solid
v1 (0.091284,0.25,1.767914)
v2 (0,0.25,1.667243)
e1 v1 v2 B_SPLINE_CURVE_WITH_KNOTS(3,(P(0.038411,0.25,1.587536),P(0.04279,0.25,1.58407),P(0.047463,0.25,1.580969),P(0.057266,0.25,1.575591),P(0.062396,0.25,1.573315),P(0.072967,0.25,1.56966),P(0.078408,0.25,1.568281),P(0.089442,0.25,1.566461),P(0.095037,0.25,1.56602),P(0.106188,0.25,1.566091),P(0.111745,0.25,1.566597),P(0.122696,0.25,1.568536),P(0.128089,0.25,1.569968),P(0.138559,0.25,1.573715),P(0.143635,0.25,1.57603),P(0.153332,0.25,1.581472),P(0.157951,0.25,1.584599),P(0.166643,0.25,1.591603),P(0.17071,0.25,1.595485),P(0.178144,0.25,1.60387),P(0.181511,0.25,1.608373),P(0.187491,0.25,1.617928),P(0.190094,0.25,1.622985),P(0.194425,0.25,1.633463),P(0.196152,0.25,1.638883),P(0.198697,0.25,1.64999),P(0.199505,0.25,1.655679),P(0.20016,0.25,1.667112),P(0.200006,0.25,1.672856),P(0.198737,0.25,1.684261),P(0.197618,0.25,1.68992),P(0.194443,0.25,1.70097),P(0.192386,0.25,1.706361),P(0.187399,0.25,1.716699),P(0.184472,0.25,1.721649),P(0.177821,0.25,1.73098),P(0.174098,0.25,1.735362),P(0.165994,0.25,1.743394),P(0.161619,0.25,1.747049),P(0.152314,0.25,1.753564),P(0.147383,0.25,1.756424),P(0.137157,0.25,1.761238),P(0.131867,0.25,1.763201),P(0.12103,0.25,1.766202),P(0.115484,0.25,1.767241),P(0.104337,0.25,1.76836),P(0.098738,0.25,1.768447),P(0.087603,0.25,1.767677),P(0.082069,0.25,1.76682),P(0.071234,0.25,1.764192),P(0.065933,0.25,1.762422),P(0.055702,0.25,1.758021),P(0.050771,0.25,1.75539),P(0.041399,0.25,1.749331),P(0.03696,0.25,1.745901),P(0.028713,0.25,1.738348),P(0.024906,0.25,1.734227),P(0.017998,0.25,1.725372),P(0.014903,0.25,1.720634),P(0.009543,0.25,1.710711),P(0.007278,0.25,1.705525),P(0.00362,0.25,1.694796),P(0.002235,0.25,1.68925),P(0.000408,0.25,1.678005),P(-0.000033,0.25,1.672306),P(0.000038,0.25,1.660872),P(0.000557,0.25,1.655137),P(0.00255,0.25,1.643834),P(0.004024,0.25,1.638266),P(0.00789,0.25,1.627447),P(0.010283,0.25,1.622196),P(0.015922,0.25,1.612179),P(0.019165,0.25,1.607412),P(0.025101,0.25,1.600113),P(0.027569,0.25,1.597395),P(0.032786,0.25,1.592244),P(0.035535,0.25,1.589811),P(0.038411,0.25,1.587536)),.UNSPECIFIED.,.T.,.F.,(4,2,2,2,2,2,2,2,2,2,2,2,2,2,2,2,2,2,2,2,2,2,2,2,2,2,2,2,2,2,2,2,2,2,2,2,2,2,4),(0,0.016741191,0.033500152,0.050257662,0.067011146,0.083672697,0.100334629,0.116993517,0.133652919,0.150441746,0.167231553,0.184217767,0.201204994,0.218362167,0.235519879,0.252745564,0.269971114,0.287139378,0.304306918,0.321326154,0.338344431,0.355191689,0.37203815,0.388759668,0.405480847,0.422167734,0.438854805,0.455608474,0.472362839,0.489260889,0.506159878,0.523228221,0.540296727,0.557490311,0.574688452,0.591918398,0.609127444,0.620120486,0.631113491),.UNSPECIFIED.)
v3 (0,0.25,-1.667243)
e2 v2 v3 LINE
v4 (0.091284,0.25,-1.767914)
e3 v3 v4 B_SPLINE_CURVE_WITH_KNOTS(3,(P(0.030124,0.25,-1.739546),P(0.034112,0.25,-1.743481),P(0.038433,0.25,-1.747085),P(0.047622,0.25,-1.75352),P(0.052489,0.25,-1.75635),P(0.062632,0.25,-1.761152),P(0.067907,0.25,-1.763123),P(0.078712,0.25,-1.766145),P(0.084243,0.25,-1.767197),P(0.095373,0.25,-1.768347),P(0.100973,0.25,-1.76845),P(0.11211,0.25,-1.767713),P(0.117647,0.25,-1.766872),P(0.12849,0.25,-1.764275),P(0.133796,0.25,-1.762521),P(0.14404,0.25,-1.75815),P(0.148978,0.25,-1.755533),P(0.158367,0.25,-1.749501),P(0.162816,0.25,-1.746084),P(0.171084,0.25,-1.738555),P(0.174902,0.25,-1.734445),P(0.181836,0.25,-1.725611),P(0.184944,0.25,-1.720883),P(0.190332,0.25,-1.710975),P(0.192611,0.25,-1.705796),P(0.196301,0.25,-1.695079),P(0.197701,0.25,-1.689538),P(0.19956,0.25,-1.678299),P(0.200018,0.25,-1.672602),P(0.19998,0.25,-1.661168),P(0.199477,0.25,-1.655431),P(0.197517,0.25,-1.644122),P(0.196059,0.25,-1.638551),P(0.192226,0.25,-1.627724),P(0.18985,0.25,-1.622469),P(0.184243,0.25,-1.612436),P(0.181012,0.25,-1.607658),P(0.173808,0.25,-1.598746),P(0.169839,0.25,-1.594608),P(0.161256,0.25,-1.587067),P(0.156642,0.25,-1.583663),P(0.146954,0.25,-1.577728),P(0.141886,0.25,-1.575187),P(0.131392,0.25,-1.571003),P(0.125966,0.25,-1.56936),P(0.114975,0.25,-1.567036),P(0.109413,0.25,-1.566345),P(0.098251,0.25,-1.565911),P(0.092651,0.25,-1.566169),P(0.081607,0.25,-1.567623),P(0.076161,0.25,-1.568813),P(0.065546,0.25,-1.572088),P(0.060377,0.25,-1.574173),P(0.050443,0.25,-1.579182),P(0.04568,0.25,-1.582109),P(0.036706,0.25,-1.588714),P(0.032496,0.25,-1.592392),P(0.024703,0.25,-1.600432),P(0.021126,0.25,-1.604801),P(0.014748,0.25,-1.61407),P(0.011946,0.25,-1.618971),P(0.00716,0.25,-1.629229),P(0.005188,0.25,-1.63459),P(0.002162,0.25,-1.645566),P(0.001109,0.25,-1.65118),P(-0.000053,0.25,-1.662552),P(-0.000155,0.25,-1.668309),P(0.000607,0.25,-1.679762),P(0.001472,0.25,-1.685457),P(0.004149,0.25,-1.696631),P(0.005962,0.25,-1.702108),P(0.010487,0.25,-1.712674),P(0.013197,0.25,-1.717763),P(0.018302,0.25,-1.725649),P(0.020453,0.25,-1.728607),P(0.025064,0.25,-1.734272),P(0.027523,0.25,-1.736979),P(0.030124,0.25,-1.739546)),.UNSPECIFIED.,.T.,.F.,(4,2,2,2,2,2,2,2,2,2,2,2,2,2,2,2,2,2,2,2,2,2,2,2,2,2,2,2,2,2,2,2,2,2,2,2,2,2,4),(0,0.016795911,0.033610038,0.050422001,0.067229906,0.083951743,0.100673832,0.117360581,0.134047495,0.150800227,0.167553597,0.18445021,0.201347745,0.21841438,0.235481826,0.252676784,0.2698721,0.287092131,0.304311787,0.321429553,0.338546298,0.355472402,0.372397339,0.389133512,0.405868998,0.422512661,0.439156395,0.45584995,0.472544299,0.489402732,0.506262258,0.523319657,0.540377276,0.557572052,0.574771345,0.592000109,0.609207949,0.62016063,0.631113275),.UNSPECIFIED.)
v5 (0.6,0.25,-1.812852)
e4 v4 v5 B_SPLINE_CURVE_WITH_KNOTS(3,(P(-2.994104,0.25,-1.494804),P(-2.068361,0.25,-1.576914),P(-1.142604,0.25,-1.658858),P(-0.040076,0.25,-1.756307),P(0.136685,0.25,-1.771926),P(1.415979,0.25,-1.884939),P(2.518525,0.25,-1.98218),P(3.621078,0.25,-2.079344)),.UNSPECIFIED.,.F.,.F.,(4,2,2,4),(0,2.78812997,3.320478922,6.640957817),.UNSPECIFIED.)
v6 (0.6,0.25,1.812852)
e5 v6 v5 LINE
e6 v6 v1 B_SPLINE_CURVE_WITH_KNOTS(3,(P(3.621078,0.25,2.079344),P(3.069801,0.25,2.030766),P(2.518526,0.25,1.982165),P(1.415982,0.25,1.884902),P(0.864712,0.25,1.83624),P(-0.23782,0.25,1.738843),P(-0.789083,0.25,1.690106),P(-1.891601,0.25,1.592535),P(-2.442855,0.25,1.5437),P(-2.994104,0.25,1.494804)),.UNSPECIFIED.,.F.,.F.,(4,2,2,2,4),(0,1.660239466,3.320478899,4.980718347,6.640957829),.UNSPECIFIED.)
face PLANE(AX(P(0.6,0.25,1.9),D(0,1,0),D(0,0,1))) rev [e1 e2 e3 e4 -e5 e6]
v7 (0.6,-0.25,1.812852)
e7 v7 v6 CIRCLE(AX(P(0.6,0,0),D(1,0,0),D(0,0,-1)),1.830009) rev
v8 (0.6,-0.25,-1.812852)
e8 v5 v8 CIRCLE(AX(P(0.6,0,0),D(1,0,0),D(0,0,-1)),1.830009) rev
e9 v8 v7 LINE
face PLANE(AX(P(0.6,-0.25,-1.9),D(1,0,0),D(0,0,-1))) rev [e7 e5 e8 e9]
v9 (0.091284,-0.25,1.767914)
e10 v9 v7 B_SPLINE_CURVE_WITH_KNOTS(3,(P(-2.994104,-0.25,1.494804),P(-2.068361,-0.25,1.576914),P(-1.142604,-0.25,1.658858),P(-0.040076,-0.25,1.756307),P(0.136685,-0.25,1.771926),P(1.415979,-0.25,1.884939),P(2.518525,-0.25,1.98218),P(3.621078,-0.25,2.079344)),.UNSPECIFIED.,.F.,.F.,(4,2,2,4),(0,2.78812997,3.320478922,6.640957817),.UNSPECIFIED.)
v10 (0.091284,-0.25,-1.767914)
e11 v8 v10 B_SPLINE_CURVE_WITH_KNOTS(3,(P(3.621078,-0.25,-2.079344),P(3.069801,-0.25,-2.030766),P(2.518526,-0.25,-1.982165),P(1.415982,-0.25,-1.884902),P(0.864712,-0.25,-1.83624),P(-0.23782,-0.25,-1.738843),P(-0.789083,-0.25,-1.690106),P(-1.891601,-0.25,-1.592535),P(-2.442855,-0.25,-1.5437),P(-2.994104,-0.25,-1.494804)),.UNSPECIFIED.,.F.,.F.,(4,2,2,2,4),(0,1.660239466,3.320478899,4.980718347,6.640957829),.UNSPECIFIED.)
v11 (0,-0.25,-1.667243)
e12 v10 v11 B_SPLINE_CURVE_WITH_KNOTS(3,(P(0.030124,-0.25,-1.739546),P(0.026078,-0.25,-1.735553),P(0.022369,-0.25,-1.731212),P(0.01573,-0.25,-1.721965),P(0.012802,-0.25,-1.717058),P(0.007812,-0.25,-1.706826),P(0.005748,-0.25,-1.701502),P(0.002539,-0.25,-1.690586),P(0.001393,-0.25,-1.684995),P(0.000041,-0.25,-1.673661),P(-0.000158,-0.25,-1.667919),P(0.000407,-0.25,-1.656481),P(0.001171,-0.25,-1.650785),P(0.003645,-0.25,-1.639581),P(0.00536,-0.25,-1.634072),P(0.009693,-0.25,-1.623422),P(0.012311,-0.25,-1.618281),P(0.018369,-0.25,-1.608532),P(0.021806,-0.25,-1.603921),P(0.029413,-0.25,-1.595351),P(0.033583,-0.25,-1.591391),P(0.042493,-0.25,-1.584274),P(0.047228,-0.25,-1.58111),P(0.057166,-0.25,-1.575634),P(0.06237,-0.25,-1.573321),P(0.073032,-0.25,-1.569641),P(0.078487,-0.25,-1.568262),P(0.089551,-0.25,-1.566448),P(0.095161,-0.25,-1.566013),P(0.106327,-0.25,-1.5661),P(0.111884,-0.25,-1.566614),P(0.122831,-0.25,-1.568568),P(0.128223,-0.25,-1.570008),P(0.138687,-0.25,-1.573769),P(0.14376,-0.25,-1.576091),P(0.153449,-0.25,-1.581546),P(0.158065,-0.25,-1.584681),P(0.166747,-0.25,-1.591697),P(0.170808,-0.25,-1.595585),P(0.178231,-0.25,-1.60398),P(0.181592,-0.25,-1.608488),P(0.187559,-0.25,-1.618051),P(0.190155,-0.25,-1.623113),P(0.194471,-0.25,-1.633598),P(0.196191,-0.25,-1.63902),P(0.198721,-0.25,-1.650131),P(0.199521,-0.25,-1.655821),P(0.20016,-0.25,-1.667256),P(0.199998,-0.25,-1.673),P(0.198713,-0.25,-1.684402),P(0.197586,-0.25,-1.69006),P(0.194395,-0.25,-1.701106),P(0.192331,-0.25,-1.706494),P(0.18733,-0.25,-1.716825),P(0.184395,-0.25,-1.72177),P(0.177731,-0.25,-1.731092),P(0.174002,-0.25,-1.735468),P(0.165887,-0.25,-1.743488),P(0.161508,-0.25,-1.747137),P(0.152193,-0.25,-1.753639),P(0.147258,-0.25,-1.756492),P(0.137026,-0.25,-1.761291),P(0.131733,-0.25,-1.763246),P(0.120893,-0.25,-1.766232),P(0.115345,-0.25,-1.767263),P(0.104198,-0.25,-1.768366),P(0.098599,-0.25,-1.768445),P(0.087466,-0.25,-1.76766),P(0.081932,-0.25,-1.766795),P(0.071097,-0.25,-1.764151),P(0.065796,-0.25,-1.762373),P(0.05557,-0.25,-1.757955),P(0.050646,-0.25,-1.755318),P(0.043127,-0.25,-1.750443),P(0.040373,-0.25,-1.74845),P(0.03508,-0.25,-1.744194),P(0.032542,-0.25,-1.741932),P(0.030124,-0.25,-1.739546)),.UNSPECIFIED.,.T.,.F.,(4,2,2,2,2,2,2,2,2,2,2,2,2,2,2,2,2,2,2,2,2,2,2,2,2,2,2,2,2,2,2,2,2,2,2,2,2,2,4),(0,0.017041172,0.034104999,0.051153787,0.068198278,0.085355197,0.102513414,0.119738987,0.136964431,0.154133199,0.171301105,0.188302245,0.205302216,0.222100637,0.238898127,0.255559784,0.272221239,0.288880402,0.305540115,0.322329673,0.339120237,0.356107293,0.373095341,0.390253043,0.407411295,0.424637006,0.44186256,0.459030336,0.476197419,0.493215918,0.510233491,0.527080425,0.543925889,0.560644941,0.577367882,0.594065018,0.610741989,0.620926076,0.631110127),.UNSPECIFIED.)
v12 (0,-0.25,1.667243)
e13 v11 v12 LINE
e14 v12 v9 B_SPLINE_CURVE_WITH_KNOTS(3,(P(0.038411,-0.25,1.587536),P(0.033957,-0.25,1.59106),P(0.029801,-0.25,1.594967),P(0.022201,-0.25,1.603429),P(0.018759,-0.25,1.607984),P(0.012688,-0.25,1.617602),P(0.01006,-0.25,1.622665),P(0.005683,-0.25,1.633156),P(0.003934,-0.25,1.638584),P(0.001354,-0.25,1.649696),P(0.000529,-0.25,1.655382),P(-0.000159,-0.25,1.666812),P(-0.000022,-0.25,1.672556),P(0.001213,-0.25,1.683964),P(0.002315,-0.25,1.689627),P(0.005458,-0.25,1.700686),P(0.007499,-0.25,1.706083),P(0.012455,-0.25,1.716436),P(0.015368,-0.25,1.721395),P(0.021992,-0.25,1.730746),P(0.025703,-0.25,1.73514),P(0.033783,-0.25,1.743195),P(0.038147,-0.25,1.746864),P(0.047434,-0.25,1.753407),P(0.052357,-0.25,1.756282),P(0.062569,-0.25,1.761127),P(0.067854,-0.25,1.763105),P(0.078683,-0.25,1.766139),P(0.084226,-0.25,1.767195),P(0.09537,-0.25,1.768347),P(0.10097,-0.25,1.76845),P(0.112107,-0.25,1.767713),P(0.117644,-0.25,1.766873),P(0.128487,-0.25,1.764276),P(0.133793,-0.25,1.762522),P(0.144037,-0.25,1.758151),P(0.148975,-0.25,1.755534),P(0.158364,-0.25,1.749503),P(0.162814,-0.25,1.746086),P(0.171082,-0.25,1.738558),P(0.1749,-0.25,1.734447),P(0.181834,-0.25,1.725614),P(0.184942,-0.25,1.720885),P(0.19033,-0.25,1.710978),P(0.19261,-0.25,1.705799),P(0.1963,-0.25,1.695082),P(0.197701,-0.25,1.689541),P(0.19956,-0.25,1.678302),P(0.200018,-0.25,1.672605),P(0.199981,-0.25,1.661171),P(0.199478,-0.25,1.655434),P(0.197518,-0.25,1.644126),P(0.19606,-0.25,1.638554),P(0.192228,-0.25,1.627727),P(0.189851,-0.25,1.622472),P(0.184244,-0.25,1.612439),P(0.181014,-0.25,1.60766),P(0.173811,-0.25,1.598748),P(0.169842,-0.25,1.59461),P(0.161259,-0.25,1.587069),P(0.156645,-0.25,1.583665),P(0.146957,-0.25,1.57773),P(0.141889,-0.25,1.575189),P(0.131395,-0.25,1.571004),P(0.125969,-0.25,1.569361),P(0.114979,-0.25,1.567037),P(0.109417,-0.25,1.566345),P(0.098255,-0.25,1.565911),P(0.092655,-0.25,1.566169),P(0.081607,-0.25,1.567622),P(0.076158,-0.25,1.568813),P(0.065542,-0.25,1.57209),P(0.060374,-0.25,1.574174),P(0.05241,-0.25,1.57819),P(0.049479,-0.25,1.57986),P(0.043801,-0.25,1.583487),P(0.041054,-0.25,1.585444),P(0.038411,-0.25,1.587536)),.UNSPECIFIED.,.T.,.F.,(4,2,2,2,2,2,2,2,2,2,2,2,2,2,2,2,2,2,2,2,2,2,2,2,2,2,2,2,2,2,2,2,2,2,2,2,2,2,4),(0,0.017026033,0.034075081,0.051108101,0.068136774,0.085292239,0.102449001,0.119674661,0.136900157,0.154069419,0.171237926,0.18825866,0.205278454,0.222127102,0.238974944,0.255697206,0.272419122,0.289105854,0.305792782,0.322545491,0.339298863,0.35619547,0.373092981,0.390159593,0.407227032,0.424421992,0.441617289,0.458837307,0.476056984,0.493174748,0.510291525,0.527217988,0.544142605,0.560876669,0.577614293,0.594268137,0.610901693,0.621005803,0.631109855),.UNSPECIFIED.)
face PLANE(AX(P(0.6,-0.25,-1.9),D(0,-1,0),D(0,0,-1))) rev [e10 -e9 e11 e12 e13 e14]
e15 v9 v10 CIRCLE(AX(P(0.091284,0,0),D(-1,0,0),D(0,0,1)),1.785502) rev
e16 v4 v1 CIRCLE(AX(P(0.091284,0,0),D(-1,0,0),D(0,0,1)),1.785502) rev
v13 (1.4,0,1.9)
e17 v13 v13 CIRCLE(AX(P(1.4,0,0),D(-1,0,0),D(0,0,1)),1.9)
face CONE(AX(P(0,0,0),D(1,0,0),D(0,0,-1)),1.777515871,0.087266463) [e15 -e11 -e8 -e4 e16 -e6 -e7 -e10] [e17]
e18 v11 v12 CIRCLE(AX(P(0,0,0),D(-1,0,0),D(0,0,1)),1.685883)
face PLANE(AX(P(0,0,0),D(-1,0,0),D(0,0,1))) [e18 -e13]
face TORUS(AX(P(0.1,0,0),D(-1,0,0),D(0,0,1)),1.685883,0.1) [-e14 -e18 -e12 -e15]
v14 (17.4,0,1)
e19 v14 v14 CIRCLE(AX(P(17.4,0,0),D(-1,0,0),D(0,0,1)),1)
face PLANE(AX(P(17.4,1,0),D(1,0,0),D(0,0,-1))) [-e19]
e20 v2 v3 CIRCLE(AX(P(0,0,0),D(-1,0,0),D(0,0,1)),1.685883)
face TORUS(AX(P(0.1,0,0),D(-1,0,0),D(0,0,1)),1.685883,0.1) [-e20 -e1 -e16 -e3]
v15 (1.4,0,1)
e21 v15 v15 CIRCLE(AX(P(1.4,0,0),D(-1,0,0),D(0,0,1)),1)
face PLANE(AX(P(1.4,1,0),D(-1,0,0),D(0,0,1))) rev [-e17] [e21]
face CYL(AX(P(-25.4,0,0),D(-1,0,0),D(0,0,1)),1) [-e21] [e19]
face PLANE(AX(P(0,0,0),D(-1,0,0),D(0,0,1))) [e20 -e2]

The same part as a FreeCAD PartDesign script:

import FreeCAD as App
import Part
import Sketcher
from FreeCAD import Vector
Q = App.Units.Quantity


def edges_at(feature, points):
    """Names of the edges that pass closest to the given points."""
    edges = feature.Shape.Edges
    near = lambda p: min(range(len(edges)), key=lambda i: edges[i].distToShape(Part.Vertex(*p))[0])
    return sorted({f"Edge{near(p) + 1}" for p in points})

doc = App.newDocument("Part")
params = doc.addObject("Spreadsheet::Sheet", "Params")
for row, (alias, value) in enumerate([
    ("sketch1_width", "16 mm"),
    ("sketch1_height", "1 mm"),
    ("sketch1_width2", "17.4 mm"),
    ("sketch1_height2", "0.9 mm"),
    ("revolution_angle", "360 deg"),
    ("fillet_radius", "0.1 mm"),
    ("sketch2_width", "0.5 mm"),
    ("sketch2_height", "3.8 mm"),
    ("pocket1_length", "0.6 mm"),
], start=1):
    params.set(f"A{row}", alias)
    params.set(f"B{row}", "=" + value)
    params.setAlias(f"B{row}", alias)

body = doc.addObject("PartDesign::Body", "Body")

sketch1 = body.newObject("Sketcher::SketchObject", "Sketch")
sketch1.AttachmentSupport = (doc.getObject("XY_Plane"), [""])
sketch1.MapMode = "FlatFace"
sketch1.addGeometry([
    Part.LineSegment(Vector(1.4, 1, 0), Vector(1.4, 1.9, 0)),
    Part.LineSegment(Vector(1.4, 1.9, 0), Vector(0, 1.8, 0)),
    Part.LineSegment(Vector(0, 1.8, 0), Vector(0, 0, 0)),
    Part.LineSegment(Vector(0, 0, 0), Vector(17.4, 0, 0)),
    Part.LineSegment(Vector(17.4, 0, 0), Vector(17.4, 1, 0)),
    Part.LineSegment(Vector(17.4, 1, 0), Vector(1.4, 1, 0)),
], False)
sketch1.addConstraint([
    Sketcher.Constraint("Coincident", 0, 2, 1, 1),
    Sketcher.Constraint("Coincident", 1, 2, 2, 1),
    Sketcher.Constraint("Coincident", 2, 2, 3, 1),
    Sketcher.Constraint("Coincident", 3, 2, 4, 1),
    Sketcher.Constraint("Coincident", 4, 2, 5, 1),
    Sketcher.Constraint("Coincident", 5, 2, 0, 1),
    Sketcher.Constraint("Vertical", 0),
    Sketcher.Constraint("Vertical", 2),
    Sketcher.Constraint("Horizontal", 3),
    Sketcher.Constraint("Vertical", 4),
    Sketcher.Constraint("Horizontal", 5),
    Sketcher.Constraint("Coincident", 2, 2, -1, 1),
    Sketcher.Constraint("DistanceX", 5, 2, 5, 1, Q("16 mm")),
    Sketcher.Constraint("DistanceY", 4, 1, 4, 2, Q("1 mm")),
    Sketcher.Constraint("Angle", 1, Q("-175 deg")),
    Sketcher.Constraint("DistanceX", 3, 1, 3, 2, Q("17.4 mm")),
    Sketcher.Constraint("DistanceY", 0, 1, 0, 2, Q("0.9 mm")),
])
sketch1.setExpression("Constraints[12]", "Params.sketch1_width")
sketch1.setExpression("Constraints[13]", "Params.sketch1_height")
sketch1.setExpression("Constraints[15]", "Params.sketch1_width2")
sketch1.setExpression("Constraints[16]", "Params.sketch1_height2")
revolution = body.newObject("PartDesign::Revolution", "Revolution")
revolution.Profile = sketch1
revolution.ReferenceAxis = (sketch1, ["H_Axis"])
revolution.setExpression("Angle", "Params.revolution_angle")
doc.recompute()

fillet = body.newObject("PartDesign::Fillet", "Fillet")
fillet.Base = (revolution, edges_at(revolution, [(0, 0, -1.778)]))
fillet.setExpression("Radius", "Params.fillet_radius")

sketch2 = body.newObject("Sketcher::SketchObject", "Sketch001")
sketch2.AttachmentSupport = (doc.getObject("YZ_Plane"), [""])
sketch2.MapMode = "FlatFace"
sketch2.addGeometry([
    Part.LineSegment(Vector(0.2, 1.9, 0), Vector(-0.2, 1.9, 0)),
    Part.LineSegment(Vector(-0.2, 1.9, 0), Vector(-0.2, -1.9, 0)),
    Part.LineSegment(Vector(-0.2, -1.9, 0), Vector(0.2, -1.9, 0)),
    Part.LineSegment(Vector(0.2, -1.9, 0), Vector(0.2, 1.9, 0)),
], False)
sketch2.addConstraint([
    Sketcher.Constraint("Coincident", 0, 2, 1, 1),
    Sketcher.Constraint("Coincident", 1, 2, 2, 1),
    Sketcher.Constraint("Coincident", 2, 2, 3, 1),
    Sketcher.Constraint("Coincident", 3, 2, 0, 1),
    Sketcher.Constraint("Horizontal", 0),
    Sketcher.Constraint("Vertical", 1),
    Sketcher.Constraint("Horizontal", 2),
    Sketcher.Constraint("Vertical", 3),
    Sketcher.Constraint("Symmetric", 0, 2, 2, 2, -1, 1),
    Sketcher.Constraint("DistanceX", 0, 2, 0, 1, Q("0.5 mm")),
    Sketcher.Constraint("DistanceY", 1, 2, 1, 1, Q("3.8 mm")),
])
sketch2.setExpression("Constraints[9]", "Params.sketch2_width")
sketch2.setExpression("Constraints[10]", "Params.sketch2_height")
pocket1 = body.newObject("PartDesign::Pocket", "Pocket")
pocket1.Profile = sketch2
pocket1.setExpression("Length", "Params.pocket1_length")
pocket1.Reversed = True

doc.recompute()
